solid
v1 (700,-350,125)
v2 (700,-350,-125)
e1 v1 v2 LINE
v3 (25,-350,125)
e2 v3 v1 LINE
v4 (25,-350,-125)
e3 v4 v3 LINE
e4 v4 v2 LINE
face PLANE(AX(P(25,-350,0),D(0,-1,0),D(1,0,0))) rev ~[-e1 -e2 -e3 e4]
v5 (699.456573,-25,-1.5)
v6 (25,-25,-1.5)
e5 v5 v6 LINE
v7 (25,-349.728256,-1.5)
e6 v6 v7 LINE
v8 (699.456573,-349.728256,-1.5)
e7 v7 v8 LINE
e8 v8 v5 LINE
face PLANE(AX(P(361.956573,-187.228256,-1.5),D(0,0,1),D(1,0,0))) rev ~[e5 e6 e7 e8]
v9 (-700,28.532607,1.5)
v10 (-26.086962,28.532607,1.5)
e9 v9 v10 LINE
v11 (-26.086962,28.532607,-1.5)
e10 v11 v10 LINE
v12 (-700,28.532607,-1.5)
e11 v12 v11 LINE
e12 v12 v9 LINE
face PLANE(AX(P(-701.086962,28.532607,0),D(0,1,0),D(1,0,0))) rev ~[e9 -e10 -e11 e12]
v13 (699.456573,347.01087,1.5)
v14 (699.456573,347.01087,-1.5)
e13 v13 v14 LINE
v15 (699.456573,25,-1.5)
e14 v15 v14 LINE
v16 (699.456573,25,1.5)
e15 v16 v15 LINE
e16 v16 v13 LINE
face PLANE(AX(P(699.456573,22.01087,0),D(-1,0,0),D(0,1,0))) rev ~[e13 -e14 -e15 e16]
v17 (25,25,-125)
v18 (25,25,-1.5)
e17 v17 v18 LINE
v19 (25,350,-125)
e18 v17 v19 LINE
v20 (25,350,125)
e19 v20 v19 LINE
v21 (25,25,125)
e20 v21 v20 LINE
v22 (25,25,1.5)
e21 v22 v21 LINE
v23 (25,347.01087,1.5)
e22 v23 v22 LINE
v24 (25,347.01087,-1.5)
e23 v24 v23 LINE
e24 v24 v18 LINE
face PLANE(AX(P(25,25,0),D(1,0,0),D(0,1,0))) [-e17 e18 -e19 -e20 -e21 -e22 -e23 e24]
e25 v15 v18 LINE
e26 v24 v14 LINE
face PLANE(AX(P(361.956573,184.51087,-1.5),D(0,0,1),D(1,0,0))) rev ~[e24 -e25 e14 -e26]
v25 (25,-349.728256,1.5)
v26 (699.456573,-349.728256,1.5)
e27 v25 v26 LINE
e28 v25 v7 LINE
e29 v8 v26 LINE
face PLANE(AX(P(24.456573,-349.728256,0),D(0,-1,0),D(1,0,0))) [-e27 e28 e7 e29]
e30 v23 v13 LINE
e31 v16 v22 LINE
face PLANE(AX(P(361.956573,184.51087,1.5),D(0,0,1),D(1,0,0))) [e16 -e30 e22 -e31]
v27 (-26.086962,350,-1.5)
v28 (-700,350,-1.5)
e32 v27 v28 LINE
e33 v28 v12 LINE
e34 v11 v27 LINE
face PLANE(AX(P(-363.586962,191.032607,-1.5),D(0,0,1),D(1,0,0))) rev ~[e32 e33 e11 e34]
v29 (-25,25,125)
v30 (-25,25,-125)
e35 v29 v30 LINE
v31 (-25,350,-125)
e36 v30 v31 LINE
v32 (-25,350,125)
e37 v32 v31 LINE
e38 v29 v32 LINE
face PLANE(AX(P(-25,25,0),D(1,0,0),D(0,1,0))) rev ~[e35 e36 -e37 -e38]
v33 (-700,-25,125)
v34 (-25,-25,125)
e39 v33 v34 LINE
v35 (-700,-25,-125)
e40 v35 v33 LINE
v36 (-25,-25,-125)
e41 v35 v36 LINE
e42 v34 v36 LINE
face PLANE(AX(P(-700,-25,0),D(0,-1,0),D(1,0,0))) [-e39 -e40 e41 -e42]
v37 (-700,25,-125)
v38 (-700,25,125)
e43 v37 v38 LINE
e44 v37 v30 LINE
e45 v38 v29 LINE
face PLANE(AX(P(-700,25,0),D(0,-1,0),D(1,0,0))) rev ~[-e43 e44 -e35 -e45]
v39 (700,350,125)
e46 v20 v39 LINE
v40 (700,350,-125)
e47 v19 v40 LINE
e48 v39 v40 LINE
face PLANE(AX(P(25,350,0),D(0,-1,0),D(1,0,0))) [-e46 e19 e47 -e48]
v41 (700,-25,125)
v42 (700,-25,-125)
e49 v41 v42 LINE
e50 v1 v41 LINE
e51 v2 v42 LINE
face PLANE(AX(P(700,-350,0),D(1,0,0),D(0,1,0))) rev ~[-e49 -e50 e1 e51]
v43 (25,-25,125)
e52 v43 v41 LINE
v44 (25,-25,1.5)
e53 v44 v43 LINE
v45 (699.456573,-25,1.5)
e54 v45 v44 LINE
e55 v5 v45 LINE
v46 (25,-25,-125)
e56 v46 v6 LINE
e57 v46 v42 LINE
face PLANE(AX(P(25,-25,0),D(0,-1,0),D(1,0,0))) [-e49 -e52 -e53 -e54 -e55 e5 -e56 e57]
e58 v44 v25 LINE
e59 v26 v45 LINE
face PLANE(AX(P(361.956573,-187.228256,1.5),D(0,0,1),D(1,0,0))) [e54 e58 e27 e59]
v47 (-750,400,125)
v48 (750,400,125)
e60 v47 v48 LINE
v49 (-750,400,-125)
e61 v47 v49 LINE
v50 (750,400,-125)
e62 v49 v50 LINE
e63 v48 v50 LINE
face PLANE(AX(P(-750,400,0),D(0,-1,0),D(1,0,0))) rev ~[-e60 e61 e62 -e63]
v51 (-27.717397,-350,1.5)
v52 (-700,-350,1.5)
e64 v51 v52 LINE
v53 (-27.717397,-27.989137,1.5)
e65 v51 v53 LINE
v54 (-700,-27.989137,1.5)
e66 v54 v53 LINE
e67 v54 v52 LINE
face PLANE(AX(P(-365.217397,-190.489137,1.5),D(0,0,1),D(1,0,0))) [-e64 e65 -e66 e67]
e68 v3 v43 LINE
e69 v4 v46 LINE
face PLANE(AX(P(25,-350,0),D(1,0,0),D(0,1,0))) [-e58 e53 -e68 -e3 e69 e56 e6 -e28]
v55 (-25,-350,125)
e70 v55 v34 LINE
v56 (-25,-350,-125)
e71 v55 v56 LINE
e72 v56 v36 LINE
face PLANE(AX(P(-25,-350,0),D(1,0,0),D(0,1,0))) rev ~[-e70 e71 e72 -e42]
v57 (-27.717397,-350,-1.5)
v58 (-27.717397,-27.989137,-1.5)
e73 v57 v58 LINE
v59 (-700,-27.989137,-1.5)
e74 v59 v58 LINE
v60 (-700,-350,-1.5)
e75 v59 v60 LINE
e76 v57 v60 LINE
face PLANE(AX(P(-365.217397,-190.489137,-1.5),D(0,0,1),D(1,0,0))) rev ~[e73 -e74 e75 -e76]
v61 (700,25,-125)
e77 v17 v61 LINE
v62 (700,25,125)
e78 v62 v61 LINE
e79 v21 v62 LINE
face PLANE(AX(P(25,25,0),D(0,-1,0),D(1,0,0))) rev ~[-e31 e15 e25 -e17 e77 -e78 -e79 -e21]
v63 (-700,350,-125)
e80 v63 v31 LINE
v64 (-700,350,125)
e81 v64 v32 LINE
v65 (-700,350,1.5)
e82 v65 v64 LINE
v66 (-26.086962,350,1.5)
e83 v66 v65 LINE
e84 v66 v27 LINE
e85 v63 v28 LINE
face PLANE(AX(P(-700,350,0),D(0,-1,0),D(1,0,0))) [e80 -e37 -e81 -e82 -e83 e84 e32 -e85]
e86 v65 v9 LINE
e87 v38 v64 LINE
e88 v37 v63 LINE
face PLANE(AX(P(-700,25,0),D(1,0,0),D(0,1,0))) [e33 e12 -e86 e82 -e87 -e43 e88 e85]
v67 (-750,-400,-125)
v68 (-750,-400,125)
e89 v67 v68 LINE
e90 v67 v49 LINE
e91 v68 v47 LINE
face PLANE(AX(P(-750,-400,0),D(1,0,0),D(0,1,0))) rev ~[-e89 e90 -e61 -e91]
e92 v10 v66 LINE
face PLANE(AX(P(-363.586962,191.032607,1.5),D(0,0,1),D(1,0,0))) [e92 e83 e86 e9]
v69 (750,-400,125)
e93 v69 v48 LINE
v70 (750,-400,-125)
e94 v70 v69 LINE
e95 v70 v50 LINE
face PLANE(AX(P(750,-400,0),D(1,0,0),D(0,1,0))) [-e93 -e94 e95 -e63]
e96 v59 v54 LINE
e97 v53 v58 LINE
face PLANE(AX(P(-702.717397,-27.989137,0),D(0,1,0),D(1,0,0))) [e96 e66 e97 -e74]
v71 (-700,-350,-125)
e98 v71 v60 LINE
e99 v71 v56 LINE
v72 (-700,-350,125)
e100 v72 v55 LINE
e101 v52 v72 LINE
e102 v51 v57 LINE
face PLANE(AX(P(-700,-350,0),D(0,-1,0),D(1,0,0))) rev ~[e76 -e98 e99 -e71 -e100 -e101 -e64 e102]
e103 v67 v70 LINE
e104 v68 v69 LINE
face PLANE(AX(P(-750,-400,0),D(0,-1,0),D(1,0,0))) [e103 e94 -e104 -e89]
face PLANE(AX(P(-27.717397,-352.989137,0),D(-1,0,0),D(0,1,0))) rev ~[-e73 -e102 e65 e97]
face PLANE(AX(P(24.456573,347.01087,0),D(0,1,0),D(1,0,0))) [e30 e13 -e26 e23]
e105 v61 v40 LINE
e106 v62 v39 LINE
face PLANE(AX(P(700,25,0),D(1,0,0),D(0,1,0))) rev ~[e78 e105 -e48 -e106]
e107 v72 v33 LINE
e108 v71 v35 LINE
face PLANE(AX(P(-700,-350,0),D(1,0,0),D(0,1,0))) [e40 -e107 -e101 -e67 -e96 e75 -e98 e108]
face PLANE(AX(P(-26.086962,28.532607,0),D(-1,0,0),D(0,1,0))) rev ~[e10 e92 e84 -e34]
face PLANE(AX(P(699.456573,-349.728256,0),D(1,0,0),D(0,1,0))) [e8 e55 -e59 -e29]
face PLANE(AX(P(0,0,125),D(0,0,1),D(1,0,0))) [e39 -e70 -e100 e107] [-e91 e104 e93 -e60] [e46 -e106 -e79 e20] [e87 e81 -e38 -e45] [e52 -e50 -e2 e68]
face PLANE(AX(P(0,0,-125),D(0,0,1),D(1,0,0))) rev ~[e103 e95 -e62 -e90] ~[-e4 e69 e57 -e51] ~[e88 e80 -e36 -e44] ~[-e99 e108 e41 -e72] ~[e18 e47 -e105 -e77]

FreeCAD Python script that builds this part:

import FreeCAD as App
import Part
import Sketcher
from FreeCAD import Vector

doc = App.newDocument("Part")
body = doc.addObject("PartDesign::Body", "Body")

sketch1 = doc.addObject("Sketcher::SketchObject", "Sketch")
body.addObject(sketch1)
sketch1.AttachmentSupport = (doc.XY_Plane, [""])
sketch1.MapMode = "FlatFace"
sketch1.addGeometry([
    Part.LineSegment(Vector(-750, 400, 0), Vector(-750, -400, 0)),
    Part.LineSegment(Vector(-750, -400, 0), Vector(750, -400, 0)),
    Part.LineSegment(Vector(750, -400, 0), Vector(750, 400, 0)),
    Part.LineSegment(Vector(750, 400, 0), Vector(-750, 400, 0)),
    Part.LineSegment(Vector(-25, -350, 0), Vector(-700, -350, 0)),
    Part.LineSegment(Vector(-700, -350, 0), Vector(-700, -25, 0)),
    Part.LineSegment(Vector(-700, -25, 0), Vector(-25, -25, 0)),
    Part.LineSegment(Vector(-25, -25, 0), Vector(-25, -350, 0)),
    Part.LineSegment(Vector(700, -350, 0), Vector(25, -350, 0)),
    Part.LineSegment(Vector(25, -350, 0), Vector(25, -25, 0)),
    Part.LineSegment(Vector(25, -25, 0), Vector(700, -25, 0)),
    Part.LineSegment(Vector(700, -25, 0), Vector(700, -350, 0)),
    Part.LineSegment(Vector(-25, 25, 0), Vector(-700, 25, 0)),
    Part.LineSegment(Vector(-700, 25, 0), Vector(-700, 350, 0)),
    Part.LineSegment(Vector(-700, 350, 0), Vector(-25, 350, 0)),
    Part.LineSegment(Vector(-25, 350, 0), Vector(-25, 25, 0)),
    Part.LineSegment(Vector(700, 25, 0), Vector(25, 25, 0)),
    Part.LineSegment(Vector(25, 25, 0), Vector(25, 350, 0)),
    Part.LineSegment(Vector(25, 350, 0), Vector(700, 350, 0)),
    Part.LineSegment(Vector(700, 350, 0), Vector(700, 25, 0)),
], False)
sketch1.addConstraint([
    Sketcher.Constraint("Coincident", 0, 2, 1, 1),
    Sketcher.Constraint("Coincident", 1, 2, 2, 1),
    Sketcher.Constraint("Coincident", 2, 2, 3, 1),
    Sketcher.Constraint("Coincident", 3, 2, 0, 1),
    Sketcher.Constraint("Coincident", 4, 2, 5, 1),
    Sketcher.Constraint("Coincident", 5, 2, 6, 1),
    Sketcher.Constraint("Coincident", 6, 2, 7, 1),
    Sketcher.Constraint("Coincident", 7, 2, 4, 1),
    Sketcher.Constraint("Coincident", 8, 2, 9, 1),
    Sketcher.Constraint("Coincident", 9, 2, 10, 1),
    Sketcher.Constraint("Coincident", 10, 2, 11, 1),
    Sketcher.Constraint("Coincident", 11, 2, 8, 1),
    Sketcher.Constraint("Coincident", 12, 2, 13, 1),
    Sketcher.Constraint("Coincident", 13, 2, 14, 1),
    Sketcher.Constraint("Coincident", 14, 2, 15, 1),
    Sketcher.Constraint("Coincident", 15, 2, 12, 1),
    Sketcher.Constraint("Coincident", 16, 2, 17, 1),
    Sketcher.Constraint("Coincident", 17, 2, 18, 1),
    Sketcher.Constraint("Coincident", 18, 2, 19, 1),
    Sketcher.Constraint("Coincident", 19, 2, 16, 1),
    Sketcher.Constraint("Vertical", 0),
    Sketcher.Constraint("Horizontal", 1),
    Sketcher.Constraint("Vertical", 2),
    Sketcher.Constraint("Horizontal", 3),
    Sketcher.Constraint("Horizontal", 4),
    Sketcher.Constraint("Vertical", 5),
    Sketcher.Constraint("Horizontal", 6),
    Sketcher.Constraint("Vertical", 7),
    Sketcher.Constraint("Horizontal", 8),
    Sketcher.Constraint("Vertical", 9),
    Sketcher.Constraint("Horizontal", 10),
    Sketcher.Constraint("Vertical", 11),
    Sketcher.Constraint("Horizontal", 12),
    Sketcher.Constraint("Vertical", 13),
    Sketcher.Constraint("Horizontal", 14),
    Sketcher.Constraint("Vertical", 15),
    Sketcher.Constraint("Horizontal", 16),
    Sketcher.Constraint("Vertical", 17),
    Sketcher.Constraint("Horizontal", 18),
    Sketcher.Constraint("Vertical", 19),
    Sketcher.Constraint("Symmetric", 0, 2, 2, 2, -1, 1),
    Sketcher.Constraint("Symmetric", 10, 2, 12, 2, -1, 1),
    Sketcher.Constraint("Symmetric", 8, 2, 14, 2, -1, 1),
    Sketcher.Constraint("Symmetric", 6, 2, 16, 2, -1, 1),
    Sketcher.Constraint("Symmetric", 4, 2, 18, 2, -1, 1),
    Sketcher.Constraint("Symmetric", 7, 2, 8, 2, -2),
    Sketcher.Constraint("Symmetric", 5, 2, 10, 2, -2),
    Sketcher.Constraint("DistanceX", 1, 1, 1, 2, 1500.0),
    Sketcher.Constraint("DistanceX", 4, 2, 4, 1, 675.0),
    Sketcher.Constraint("DistanceY", 0, 2, 0, 1, 800.0),
    Sketcher.Constraint("DistanceY", 5, 1, 5, 2, 325.0),
    Sketcher.Constraint("DistanceX", 4, 2, -1, 1, 700.0),
    Sketcher.Constraint("DistanceY", 4, 2, -1, 1, 350.0),
])
pad1 = doc.addObject("PartDesign::Pad", "Pad")
body.addObject(pad1)
pad1.Profile = sketch1
pad1.Length = 250
pad1.Midplane = True

sketch2 = doc.addObject("Sketcher::SketchObject", "Sketch001")
body.addObject(sketch2)
sketch2.AttachmentSupport = (doc.XY_Plane, [""])
sketch2.MapMode = "FlatFace"
sketch2.addGeometry([
    Part.LineSegment(Vector(-701.086962, 353.532607, 0), Vector(-701.086962, 28.532607, 0)),
    Part.LineSegment(Vector(-701.086962, 28.532607, 0), Vector(-26.086962, 28.532607, 0)),
    Part.LineSegment(Vector(-26.086962, 28.532607, 0), Vector(-26.086962, 353.532607, 0)),
    Part.LineSegment(Vector(-26.086962, 353.532607, 0), Vector(-701.086962, 353.532607, 0)),
    Part.LineSegment(Vector(24.456573, 347.01087, 0), Vector(24.456573, 22.01087, 0)),
    Part.LineSegment(Vector(24.456573, 22.01087, 0), Vector(699.456573, 22.01087, 0)),
    Part.LineSegment(Vector(699.456573, 22.01087, 0), Vector(699.456573, 347.01087, 0)),
    Part.LineSegment(Vector(699.456573, 347.01087, 0), Vector(24.456573, 347.01087, 0)),
    Part.LineSegment(Vector(-702.717397, -27.989137, 0), Vector(-702.717397, -352.989137, 0)),
    Part.LineSegment(Vector(-702.717397, -352.989137, 0), Vector(-27.717397, -352.989137, 0)),
    Part.LineSegment(Vector(-27.717397, -352.989137, 0), Vector(-27.717397, -27.989137, 0)),
    Part.LineSegment(Vector(-27.717397, -27.989137, 0), Vector(-702.717397, -27.989137, 0)),
    Part.LineSegment(Vector(24.456573, -24.728256, 0), Vector(24.456573, -349.728256, 0)),
    Part.LineSegment(Vector(24.456573, -349.728256, 0), Vector(699.456573, -349.728256, 0)),
    Part.LineSegment(Vector(699.456573, -349.728256, 0), Vector(699.456573, -24.728256, 0)),
    Part.LineSegment(Vector(699.456573, -24.728256, 0), Vector(24.456573, -24.728256, 0)),
], False)
sketch2.addConstraint([
    Sketcher.Constraint("Coincident", 0, 2, 1, 1),
    Sketcher.Constraint("Coincident", 1, 2, 2, 1),
    Sketcher.Constraint("Coincident", 2, 2, 3, 1),
    Sketcher.Constraint("Coincident", 3, 2, 0, 1),
    Sketcher.Constraint("Coincident", 4, 2, 5, 1),
    Sketcher.Constraint("Coincident", 5, 2, 6, 1),
    Sketcher.Constraint("Coincident", 6, 2, 7, 1),
    Sketcher.Constraint("Coincident", 7, 2, 4, 1),
    Sketcher.Constraint("Coincident", 8, 2, 9, 1),
    Sketcher.Constraint("Coincident", 9, 2, 10, 1),
    Sketcher.Constraint("Coincident", 10, 2, 11, 1),
    Sketcher.Constraint("Coincident", 11, 2, 8, 1),
    Sketcher.Constraint("Coincident", 12, 2, 13, 1),
    Sketcher.Constraint("Coincident", 13, 2, 14, 1),
    Sketcher.Constraint("Coincident", 14, 2, 15, 1),
    Sketcher.Constraint("Coincident", 15, 2, 12, 1),
    Sketcher.Constraint("Vertical", 0),
    Sketcher.Constraint("Horizontal", 1),
    Sketcher.Constraint("Vertical", 2),
    Sketcher.Constraint("Horizontal", 3),
    Sketcher.Constraint("Vertical", 4),
    Sketcher.Constraint("Horizontal", 5),
    Sketcher.Constraint("Vertical", 6),
    Sketcher.Constraint("Horizontal", 7),
    Sketcher.Constraint("Vertical", 8),
    Sketcher.Constraint("Horizontal", 9),
    Sketcher.Constraint("Vertical", 10),
    Sketcher.Constraint("Horizontal", 11),
    Sketcher.Constraint("Vertical", 12),
    Sketcher.Constraint("Horizontal", 13),
    Sketcher.Constraint("Vertical", 14),
    Sketcher.Constraint("Horizontal", 15),
    Sketcher.Constraint("Vertical", 7, 2, 12, 2),
    Sketcher.Constraint("Vertical", 6, 2, 13, 2),
    Sketcher.Constraint("Equal", 3, 5),
    Sketcher.Constraint("Equal", 7, 9),
    Sketcher.Constraint("Equal", 2, 4),
    Sketcher.Constraint("Equal", 6, 8),
    Sketcher.Constraint("Equal", 10, 12),
    Sketcher.Constraint("DistanceX", 1, 1, 1, 2, 675.0),
    Sketcher.Constraint("DistanceY", 0, 2, 0, 1, 325.0),
    Sketcher.Constraint("DistanceX", 0, 2, -1, 1, 701.086962),
    Sketcher.Constraint("DistanceY", -1, 1, 4, 2, 22.01087),
    Sketcher.Constraint("DistanceX", 8, 2, 4, 2, 727.17397),
    Sketcher.Constraint("DistanceY", 9, 2, 12, 2, 3.260881),
    Sketcher.Constraint("DistanceY", -1, 1, 0, 2, 28.532607),
    Sketcher.Constraint("DistanceX", -1, 1, 4, 2, 24.456573),
    Sketcher.Constraint("DistanceY", 8, 2, -1, 1, 352.989137),
])
pad2 = doc.addObject("PartDesign::Pad", "Pad001")
body.addObject(pad2)
pad2.Profile = sketch2
pad2.Length = 3
pad2.Midplane = True

doc.recompute()
